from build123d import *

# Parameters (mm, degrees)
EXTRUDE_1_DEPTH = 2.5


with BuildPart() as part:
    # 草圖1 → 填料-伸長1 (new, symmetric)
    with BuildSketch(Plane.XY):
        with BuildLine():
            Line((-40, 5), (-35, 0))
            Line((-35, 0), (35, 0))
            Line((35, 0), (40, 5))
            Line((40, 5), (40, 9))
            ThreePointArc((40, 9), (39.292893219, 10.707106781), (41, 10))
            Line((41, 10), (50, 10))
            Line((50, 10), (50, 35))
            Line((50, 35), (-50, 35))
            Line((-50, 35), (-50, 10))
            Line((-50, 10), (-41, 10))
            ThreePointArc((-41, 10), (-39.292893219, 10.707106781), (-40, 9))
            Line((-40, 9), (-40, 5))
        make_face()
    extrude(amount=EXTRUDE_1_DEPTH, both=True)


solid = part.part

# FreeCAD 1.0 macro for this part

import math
import FreeCAD as App
import Part
import Sketcher
from FreeCAD import Vector
Q = App.Units.Quantity

doc = App.newDocument("Part")
body = doc.addObject("PartDesign::Body", "Body")

# Sketch on XY plane
sketch1 = body.newObject("Sketcher::SketchObject", "Sketch")
sketch1.AttachmentSupport = (doc.getObject("XY_Plane"), [""])
sketch1.MapMode = "FlatFace"
sketch1.addGeometry([
    Part.LineSegment(Vector(-40, 5, 0), Vector(-35, 0, 0)),  # 0
    Part.LineSegment(Vector(-35, 0, 0), Vector(35, 0, 0)),  # 1
    Part.LineSegment(Vector(35, 0, 0), Vector(40, 5, 0)),  # 2
    Part.LineSegment(Vector(40, 5, 0), Vector(40, 9, 0)),  # 3
    Part.ArcOfCircle(Part.Circle(Vector(40, 10, 0), Vector(0, 0, 1), 1), math.radians(0), math.radians(270)),  # 4
    Part.LineSegment(Vector(41, 10, 0), Vector(50, 10, 0)),  # 5
    Part.LineSegment(Vector(50, 10, 0), Vector(50, 35, 0)),  # 6
    Part.LineSegment(Vector(50, 35, 0), Vector(-50, 35, 0)),  # 7
    Part.LineSegment(Vector(-50, 35, 0), Vector(-50, 10, 0)),  # 8
    Part.LineSegment(Vector(-50, 10, 0), Vector(-41, 10, 0)),  # 9
    Part.ArcOfCircle(Part.Circle(Vector(-40, 10, 0), Vector(0, 0, 1), 1), math.radians(-90), math.radians(180)),  # 10
    Part.LineSegment(Vector(-40, 9, 0), Vector(-40, 5, 0)),  # 11
], False)
sketch1.addConstraint([
    Sketcher.Constraint("Coincident", 0, 2, 1, 1),
    Sketcher.Constraint("Coincident", 1, 2, 2, 1),
    Sketcher.Constraint("Coincident", 2, 2, 3, 1),
    Sketcher.Constraint("Coincident", 3, 2, 4, 2),
    Sketcher.Constraint("Coincident", 4, 1, 5, 1),
    Sketcher.Constraint("Coincident", 5, 2, 6, 1),
    Sketcher.Constraint("Coincident", 6, 2, 7, 1),
    Sketcher.Constraint("Coincident", 7, 2, 8, 1),
    Sketcher.Constraint("Coincident", 8, 2, 9, 1),
    Sketcher.Constraint("Coincident", 9, 2, 10, 2),
    Sketcher.Constraint("Coincident", 10, 1, 11, 1),
    Sketcher.Constraint("Coincident", 11, 2, 0, 1),
    Sketcher.Constraint("Horizontal", 1),
    Sketcher.Constraint("Vertical", 3),
    Sketcher.Constraint("Horizontal", 5),
    Sketcher.Constraint("Vertical", 6),
    Sketcher.Constraint("Horizontal", 7),
    Sketcher.Constraint("Vertical", 8),
    Sketcher.Constraint("Horizontal", 9),
    Sketcher.Constraint("Vertical", 11),
    Sketcher.Constraint("Equal", 4, 10),
    Sketcher.Constraint("Symmetric", 0, 2, 1, 2, -1, 1),
    Sketcher.Constraint("Symmetric", 4, 3, 10, 3, -2),
    Sketcher.Constraint("Symmetric", 5, 2, 8, 2, -2),
    Sketcher.Constraint("Symmetric", 2, 2, 11, 2, -2),
    Sketcher.Constraint("Perpendicular", 0, 2),
    Sketcher.Constraint("Horizontal", 10, 3, 4, 1),
    Sketcher.Constraint("Vertical", 4, 3, 2, 2),
    Sketcher.Constraint("Radius", 4, Q("1 mm")),
    Sketcher.Constraint("DistanceX", 1, 1, 1, 2, Q("70 mm")),
    Sketcher.Constraint("DistanceX", 5, 1, 5, 2, Q("9 mm")),
    Sketcher.Constraint("DistanceX", 7, 2, 7, 1, Q("100 mm")),
    Sketcher.Constraint("DistanceY", 3, 1, 3, 2, Q("4 mm")),
    Sketcher.Constraint("DistanceY", 6, 1, 6, 2, Q("25 mm")),
])
pad1 = body.newObject("PartDesign::Pad", "Pad")
pad1.Profile = sketch1
pad1.Length = 5
pad1.Midplane = True

doc.recompute()
